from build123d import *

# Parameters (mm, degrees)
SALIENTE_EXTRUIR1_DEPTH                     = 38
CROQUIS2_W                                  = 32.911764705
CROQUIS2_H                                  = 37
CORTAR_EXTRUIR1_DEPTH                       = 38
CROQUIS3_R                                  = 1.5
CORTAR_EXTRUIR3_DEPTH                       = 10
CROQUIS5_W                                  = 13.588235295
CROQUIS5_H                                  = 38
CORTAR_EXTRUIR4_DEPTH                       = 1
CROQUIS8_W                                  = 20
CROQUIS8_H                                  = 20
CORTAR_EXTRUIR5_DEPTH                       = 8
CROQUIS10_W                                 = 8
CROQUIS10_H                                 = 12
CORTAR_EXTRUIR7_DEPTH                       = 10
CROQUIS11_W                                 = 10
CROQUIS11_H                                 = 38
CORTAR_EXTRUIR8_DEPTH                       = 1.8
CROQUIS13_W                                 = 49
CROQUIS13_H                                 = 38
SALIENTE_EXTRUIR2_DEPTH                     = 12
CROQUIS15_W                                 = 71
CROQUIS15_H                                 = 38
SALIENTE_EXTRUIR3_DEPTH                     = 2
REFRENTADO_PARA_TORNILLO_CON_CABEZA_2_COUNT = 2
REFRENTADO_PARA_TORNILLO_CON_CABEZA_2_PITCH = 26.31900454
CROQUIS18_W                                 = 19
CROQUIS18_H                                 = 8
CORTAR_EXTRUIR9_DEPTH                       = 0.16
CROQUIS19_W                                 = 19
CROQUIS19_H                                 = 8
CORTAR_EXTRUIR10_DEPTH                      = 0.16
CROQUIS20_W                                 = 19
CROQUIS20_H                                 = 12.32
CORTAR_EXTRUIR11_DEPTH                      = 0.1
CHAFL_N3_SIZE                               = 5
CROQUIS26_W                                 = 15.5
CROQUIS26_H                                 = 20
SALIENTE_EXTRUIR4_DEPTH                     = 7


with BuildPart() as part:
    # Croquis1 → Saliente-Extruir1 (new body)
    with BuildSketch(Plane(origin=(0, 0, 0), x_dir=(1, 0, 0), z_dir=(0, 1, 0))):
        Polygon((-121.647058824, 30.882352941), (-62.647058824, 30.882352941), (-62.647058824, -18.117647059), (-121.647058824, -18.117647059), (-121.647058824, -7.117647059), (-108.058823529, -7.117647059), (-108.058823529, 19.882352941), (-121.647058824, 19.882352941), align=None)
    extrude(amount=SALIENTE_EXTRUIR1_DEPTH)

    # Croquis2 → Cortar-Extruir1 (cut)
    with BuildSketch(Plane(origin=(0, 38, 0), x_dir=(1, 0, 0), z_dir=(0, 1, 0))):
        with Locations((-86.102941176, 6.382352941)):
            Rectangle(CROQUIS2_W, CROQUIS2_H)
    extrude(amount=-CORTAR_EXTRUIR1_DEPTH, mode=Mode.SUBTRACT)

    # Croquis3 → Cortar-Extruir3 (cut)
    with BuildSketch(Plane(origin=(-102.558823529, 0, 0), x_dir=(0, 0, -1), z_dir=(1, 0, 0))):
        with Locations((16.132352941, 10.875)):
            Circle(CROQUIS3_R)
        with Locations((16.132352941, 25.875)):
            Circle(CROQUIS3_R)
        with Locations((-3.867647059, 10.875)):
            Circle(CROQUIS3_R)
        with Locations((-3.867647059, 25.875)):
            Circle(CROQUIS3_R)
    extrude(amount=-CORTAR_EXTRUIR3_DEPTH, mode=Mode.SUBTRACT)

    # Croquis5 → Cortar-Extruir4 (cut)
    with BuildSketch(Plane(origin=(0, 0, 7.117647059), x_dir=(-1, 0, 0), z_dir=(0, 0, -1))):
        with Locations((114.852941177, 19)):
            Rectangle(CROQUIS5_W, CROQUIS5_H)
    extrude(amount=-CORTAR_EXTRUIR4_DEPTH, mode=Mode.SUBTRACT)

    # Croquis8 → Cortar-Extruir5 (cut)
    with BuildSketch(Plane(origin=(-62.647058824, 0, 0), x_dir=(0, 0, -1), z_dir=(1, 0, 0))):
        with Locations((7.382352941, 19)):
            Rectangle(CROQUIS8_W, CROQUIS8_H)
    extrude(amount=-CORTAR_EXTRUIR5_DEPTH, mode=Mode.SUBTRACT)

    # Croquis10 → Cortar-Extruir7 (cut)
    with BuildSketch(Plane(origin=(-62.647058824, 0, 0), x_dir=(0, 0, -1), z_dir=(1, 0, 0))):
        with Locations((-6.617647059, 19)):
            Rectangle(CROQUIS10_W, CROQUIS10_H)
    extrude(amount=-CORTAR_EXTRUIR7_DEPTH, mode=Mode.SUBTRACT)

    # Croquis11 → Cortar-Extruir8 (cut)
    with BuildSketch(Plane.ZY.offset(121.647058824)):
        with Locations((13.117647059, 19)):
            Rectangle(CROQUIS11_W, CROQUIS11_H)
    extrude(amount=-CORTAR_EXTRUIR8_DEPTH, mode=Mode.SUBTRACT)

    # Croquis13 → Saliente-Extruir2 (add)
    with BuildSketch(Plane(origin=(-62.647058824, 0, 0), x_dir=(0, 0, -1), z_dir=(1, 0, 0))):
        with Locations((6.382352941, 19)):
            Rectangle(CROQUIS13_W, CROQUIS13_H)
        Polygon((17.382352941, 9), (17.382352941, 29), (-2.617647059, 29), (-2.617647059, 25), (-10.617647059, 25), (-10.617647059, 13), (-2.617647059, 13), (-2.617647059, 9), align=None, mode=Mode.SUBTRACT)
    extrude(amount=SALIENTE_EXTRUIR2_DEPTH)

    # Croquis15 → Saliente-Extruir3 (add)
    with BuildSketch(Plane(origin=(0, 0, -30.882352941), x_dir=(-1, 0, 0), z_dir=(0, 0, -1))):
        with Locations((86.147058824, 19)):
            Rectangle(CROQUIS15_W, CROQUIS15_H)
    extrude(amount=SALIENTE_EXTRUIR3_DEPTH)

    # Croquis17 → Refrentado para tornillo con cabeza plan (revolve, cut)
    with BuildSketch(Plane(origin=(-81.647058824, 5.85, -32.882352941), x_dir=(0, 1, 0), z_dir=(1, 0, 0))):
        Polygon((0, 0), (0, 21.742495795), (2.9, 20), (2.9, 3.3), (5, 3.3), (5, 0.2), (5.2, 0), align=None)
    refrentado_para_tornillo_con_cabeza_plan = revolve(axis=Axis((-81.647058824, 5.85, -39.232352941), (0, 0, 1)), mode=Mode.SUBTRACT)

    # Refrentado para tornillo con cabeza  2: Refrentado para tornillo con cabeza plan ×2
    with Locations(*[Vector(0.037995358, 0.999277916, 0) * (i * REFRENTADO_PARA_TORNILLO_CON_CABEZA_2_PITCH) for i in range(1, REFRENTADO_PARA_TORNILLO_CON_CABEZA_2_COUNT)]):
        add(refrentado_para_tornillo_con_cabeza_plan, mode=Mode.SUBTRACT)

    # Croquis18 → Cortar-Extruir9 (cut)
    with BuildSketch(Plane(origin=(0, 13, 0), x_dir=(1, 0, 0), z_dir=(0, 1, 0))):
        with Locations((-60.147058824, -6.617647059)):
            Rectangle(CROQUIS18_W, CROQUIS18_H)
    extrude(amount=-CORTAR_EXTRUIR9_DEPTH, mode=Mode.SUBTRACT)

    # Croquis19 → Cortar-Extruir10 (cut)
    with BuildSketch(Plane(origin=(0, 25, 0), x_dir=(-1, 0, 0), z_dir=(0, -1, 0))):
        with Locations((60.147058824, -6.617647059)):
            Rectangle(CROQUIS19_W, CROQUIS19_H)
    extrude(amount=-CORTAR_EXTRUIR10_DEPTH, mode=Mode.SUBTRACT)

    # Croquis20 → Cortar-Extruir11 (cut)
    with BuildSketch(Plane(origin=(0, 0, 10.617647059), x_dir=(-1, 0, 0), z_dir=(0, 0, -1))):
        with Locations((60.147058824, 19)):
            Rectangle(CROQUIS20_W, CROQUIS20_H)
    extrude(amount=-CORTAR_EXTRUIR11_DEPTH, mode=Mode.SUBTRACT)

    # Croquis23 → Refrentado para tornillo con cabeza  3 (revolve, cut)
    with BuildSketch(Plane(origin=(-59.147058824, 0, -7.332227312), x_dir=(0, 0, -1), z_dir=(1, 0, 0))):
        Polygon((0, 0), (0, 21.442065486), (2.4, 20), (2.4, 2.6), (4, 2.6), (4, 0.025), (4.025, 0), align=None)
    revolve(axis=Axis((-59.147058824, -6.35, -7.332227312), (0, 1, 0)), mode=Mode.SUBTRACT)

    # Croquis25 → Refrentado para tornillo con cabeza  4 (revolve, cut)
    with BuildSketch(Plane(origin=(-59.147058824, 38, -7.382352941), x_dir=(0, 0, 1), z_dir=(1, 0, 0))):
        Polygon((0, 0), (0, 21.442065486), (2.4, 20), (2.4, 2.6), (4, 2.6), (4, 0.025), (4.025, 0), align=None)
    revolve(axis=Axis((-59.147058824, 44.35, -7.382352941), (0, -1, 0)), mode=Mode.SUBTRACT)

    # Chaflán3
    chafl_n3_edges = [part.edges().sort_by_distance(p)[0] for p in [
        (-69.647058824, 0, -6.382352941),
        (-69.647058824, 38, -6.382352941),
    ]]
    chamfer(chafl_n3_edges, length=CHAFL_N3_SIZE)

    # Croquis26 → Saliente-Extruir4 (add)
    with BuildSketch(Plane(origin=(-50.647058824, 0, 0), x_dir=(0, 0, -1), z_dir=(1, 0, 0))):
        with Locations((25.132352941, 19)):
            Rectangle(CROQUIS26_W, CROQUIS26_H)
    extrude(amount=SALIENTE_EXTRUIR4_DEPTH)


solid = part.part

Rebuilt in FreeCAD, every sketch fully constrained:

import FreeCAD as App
import Part
import Sketcher
Q = App.Units.Quantity


def edges_at(feature, points):
    """Names of the edges that pass closest to the given points."""
    edges = feature.Shape.Edges
    near = lambda p: min(range(len(edges)), key=lambda i: edges[i].distToShape(Part.Vertex(*p))[0])
    return sorted({f"Edge{near(p) + 1}" for p in points})


def add_polygon(sketch, points):
    """Adds a closed chain of lines whose ends are joined by coincident constraints."""
    first, n = sketch.GeometryCount, len(points)
    for a, b in zip(points, points[1:] + points[:1]):
        sketch.addGeometry(Part.LineSegment(App.Vector(*a, 0), App.Vector(*b, 0)), False)
    for i in range(n):
        sketch.addConstraint(Sketcher.Constraint("Coincident", first + i, 2, first + (i + 1) % n, 1))

doc = App.newDocument("Part")
body = doc.addObject("PartDesign::Body", "Body")

sketch1 = body.newObject("Sketcher::SketchObject", "Sketch")
sketch1.AttachmentSupport = (doc.getObject("XZ_Plane"), [""])
sketch1.MapMode = "FlatFace"
add_polygon(sketch1, [(-63, -31), (-122, -31), (-122, -20), (-108, -20), (-108, 7), (-122, 7), (-122, 18), (-63, 18)])
sketch1.addConstraint([
    Sketcher.Constraint("Horizontal", 0),
    Sketcher.Constraint("Vertical", 1),
    Sketcher.Constraint("Horizontal", 2),
    Sketcher.Constraint("Vertical", 3),
    Sketcher.Constraint("Horizontal", 4),
    Sketcher.Constraint("Vertical", 5),
    Sketcher.Constraint("Horizontal", 6),
    Sketcher.Constraint("Vertical", 7),
    Sketcher.Constraint("Vertical", 1, 2, 4, 2),
    Sketcher.Constraint("Equal", 1, 5),
    Sketcher.Constraint("DistanceX", 0, 2, 0, 1, 59.0),
    Sketcher.Constraint("DistanceY", 1, 1, 1, 2, 11.0),
    Sketcher.Constraint("DistanceY", 3, 1, 3, 2, 27.0),
    Sketcher.Constraint("DistanceX", 2, 1, 2, 2, 13.588235),
    Sketcher.Constraint("DistanceX", 0, 2, -1, 1, 121.647059),
    Sketcher.Constraint("DistanceY", 0, 2, -1, 1, 30.882353),
])
pad1 = body.newObject("PartDesign::Pad", "Pad")
pad1.Profile = sketch1
pad1.Length = 38
pad1.Reversed = True

sketch2 = body.newObject("Sketcher::SketchObject", "Sketch001")
sketch2.AttachmentSupport = (doc.getObject("XZ_Plane"), [""])
sketch2.MapMode = "FlatFace"
sketch2.AttachmentOffset = App.Placement(App.Vector(0, 0, -38), App.Rotation())
add_polygon(sketch2, [(-103, -25), (-103, 12), (-70, 12), (-70, -25)])
sketch2.addConstraint([
    Sketcher.Constraint("Vertical", 0),
    Sketcher.Constraint("Horizontal", 1),
    Sketcher.Constraint("Vertical", 2),
    Sketcher.Constraint("Horizontal", 3),
    Sketcher.Constraint("DistanceY", 0, 1, 0, 2, 37.0),
    Sketcher.Constraint("DistanceX", 1, 1, 1, 2, 32.911765),
    Sketcher.Constraint("DistanceX", 1, 2, -1, 1, 69.647059),
    Sketcher.Constraint("DistanceY", -1, 1, 0, 2, 12.117647),
])
pocket1 = body.newObject("PartDesign::Pocket", "Pocket")
pocket1.Profile = sketch2
pocket1.Length = 38
pocket1.Reversed = True

sketch3 = body.newObject("Sketcher::SketchObject", "Sketch002")
sketch3.AttachmentSupport = (doc.getObject("YZ_Plane"), [""])
sketch3.MapMode = "FlatFace"
sketch3.AttachmentOffset = App.Placement(App.Vector(0, 0, -102.558824), App.Rotation())
sketch3.addGeometry([
    Part.Circle(App.Vector(10.9, -16.1, 0), App.Vector(0, 0, 1), 1.5),
    Part.Circle(App.Vector(25.9, -16.1, 0), App.Vector(0, 0, 1), 1.5),
    Part.Circle(App.Vector(10.9, 3.9, 0), App.Vector(0, 0, 1), 1.5),
    Part.Circle(App.Vector(25.9, 3.9, 0), App.Vector(0, 0, 1), 1.5),
], False)
sketch3.addConstraint([
    Sketcher.Constraint("Equal", 0, 1),
    Sketcher.Constraint("Equal", 1, 2),
    Sketcher.Constraint("Equal", 2, 3),
    Sketcher.Constraint("Horizontal", 0, 3, 1, 3),
    Sketcher.Constraint("Horizontal", 2, 3, 3, 3),
    Sketcher.Constraint("Vertical", 0, 3, 2, 3),
    Sketcher.Constraint("Vertical", 1, 3, 3, 3),
    Sketcher.Constraint("Diameter", 0, 3.0),
    Sketcher.Constraint("DistanceX", 0, 3, 1, 3, 15.0),
    Sketcher.Constraint("DistanceY", 0, 3, 2, 3, 20.0),
    Sketcher.Constraint("DistanceX", -1, 1, 0, 3, 10.875),
    Sketcher.Constraint("DistanceY", 0, 3, -1, 1, 16.132353),
])
pocket2 = body.newObject("PartDesign::Pocket", "Pocket001")
pocket2.Profile = sketch3
pocket2.Length = 10

sketch4 = body.newObject("Sketcher::SketchObject", "Sketch003")
sketch4.AttachmentSupport = (doc.getObject("XY_Plane"), [""])
sketch4.MapMode = "FlatFace"
sketch4.AttachmentOffset = App.Placement(App.Vector(0, 0, 7.117647), App.Rotation())
add_polygon(sketch4, [(-108, 38), (-108, 0), (-122, 0), (-122, 38)])
sketch4.addConstraint([
    Sketcher.Constraint("Vertical", 0),
    Sketcher.Constraint("Horizontal", 1),
    Sketcher.Constraint("Vertical", 2),
    Sketcher.Constraint("Horizontal", 3),
    Sketcher.Constraint("PointOnObject", 0, 2, -1),
    Sketcher.Constraint("DistanceY", 0, 2, 0, 1, 38.0),
    Sketcher.Constraint("DistanceX", 1, 2, 1, 1, 13.588235),
    Sketcher.Constraint("DistanceX", 1, 2, -1, 1, 121.647059),
])
pocket3 = body.newObject("PartDesign::Pocket", "Pocket002")
pocket3.Profile = sketch4
pocket3.Length = 1
pocket3.Reversed = True

sketch5 = body.newObject("Sketcher::SketchObject", "Sketch004")
sketch5.AttachmentSupport = (doc.getObject("YZ_Plane"), [""])
sketch5.MapMode = "FlatFace"
sketch5.AttachmentOffset = App.Placement(App.Vector(0, 0, -62.647059), App.Rotation())
add_polygon(sketch5, [(29, 3), (9, 3), (9, -17), (29, -17)])
sketch5.addConstraint([
    Sketcher.Constraint("Horizontal", 0),
    Sketcher.Constraint("Vertical", 1),
    Sketcher.Constraint("Horizontal", 2),
    Sketcher.Constraint("Vertical", 3),
    Sketcher.Constraint("Equal", 2, 1),
    Sketcher.Constraint("DistanceX", 0, 2, 0, 1, 20.0),
    Sketcher.Constraint("DistanceX", -1, 1, 0, 2, 9.0),
    Sketcher.Constraint("DistanceY", -1, 1, 0, 2, 2.617647),
])
pocket4 = body.newObject("PartDesign::Pocket", "Pocket003")
pocket4.Profile = sketch5
pocket4.Length = 8

sketch6 = body.newObject("Sketcher::SketchObject", "Sketch005")
sketch6.AttachmentSupport = (doc.getObject("YZ_Plane"), [""])
sketch6.MapMode = "FlatFace"
sketch6.AttachmentOffset = App.Placement(App.Vector(0, 0, -62.647059), App.Rotation())
add_polygon(sketch6, [(25, 11), (13, 11), (13, 3), (25, 3)])
sketch6.addConstraint([
    Sketcher.Constraint("Horizontal", 0),
    Sketcher.Constraint("Vertical", 1),
    Sketcher.Constraint("Horizontal", 2),
    Sketcher.Constraint("Vertical", 3),
    Sketcher.Constraint("DistanceX", 0, 2, 0, 1, 12.0),
    Sketcher.Constraint("DistanceY", 1, 2, 1, 1, 8.0),
    Sketcher.Constraint("DistanceX", -1, 1, 0, 2, 13.0),
    Sketcher.Constraint("DistanceY", -1, 1, 0, 2, 10.617647),
])
pocket5 = body.newObject("PartDesign::Pocket", "Pocket004")
pocket5.Profile = sketch6
pocket5.Length = 10

sketch7 = body.newObject("Sketcher::SketchObject", "Sketch006")
sketch7.AttachmentSupport = (doc.getObject("YZ_Plane"), [""])
sketch7.MapMode = "FlatFace"
sketch7.AttachmentOffset = App.Placement(App.Vector(0, 0, -121.647059), App.Rotation())
add_polygon(sketch7, [(38, 8), (0, 8), (0, 18), (38, 18)])
sketch7.addConstraint([
    Sketcher.Constraint("Horizontal", 0),
    Sketcher.Constraint("Vertical", 1),
    Sketcher.Constraint("Horizontal", 2),
    Sketcher.Constraint("Vertical", 3),
    Sketcher.Constraint("PointOnObject", 0, 2, -2),
    Sketcher.Constraint("DistanceX", 0, 2, 0, 1, 38.0),
    Sketcher.Constraint("DistanceY", 1, 1, 1, 2, 10.0),
    Sketcher.Constraint("DistanceY", -1, 1, 0, 2, 8.117647),
])
pocket6 = body.newObject("PartDesign::Pocket", "Pocket005")
pocket6.Profile = sketch7
pocket6.Length = 1.8
pocket6.Reversed = True

sketch8 = body.newObject("Sketcher::SketchObject", "Sketch007")
sketch8.AttachmentSupport = (doc.getObject("YZ_Plane"), [""])
sketch8.MapMode = "FlatFace"
sketch8.AttachmentOffset = App.Placement(App.Vector(0, 0, -62.647059), App.Rotation())
add_polygon(sketch8, [(38, 18.1), (0, 18.1), (0, -30.9), (38, -30.9)])
add_polygon(sketch8, [(29, -17.4), (9, -17.4), (9, 2.6), (13, 2.6), (13, 10.6), (25, 10.6), (25, 2.6), (29, 2.6)])
sketch8.addConstraint([
    Sketcher.Constraint("Horizontal", 0),
    Sketcher.Constraint("Vertical", 1),
    Sketcher.Constraint("Horizontal", 2),
    Sketcher.Constraint("Vertical", 3),
    Sketcher.Constraint("Horizontal", 4),
    Sketcher.Constraint("Vertical", 5),
    Sketcher.Constraint("Horizontal", 6),
    Sketcher.Constraint("Vertical", 7),
    Sketcher.Constraint("Horizontal", 8),
    Sketcher.Constraint("Vertical", 9),
    Sketcher.Constraint("Horizontal", 10),
    Sketcher.Constraint("Vertical", 11),
    Sketcher.Constraint("PointOnObject", 0, 2, -2),
    Sketcher.Constraint("Horizontal", 6, 2, 9, 2),
    Sketcher.Constraint("Equal", 6, 10),
    Sketcher.Constraint("Equal", 4, 5),
    Sketcher.Constraint("DistanceX", 0, 2, 0, 1, 38.0),
    Sketcher.Constraint("DistanceX", 4, 2, 4, 1, 20.0),
    Sketcher.Constraint("DistanceX", 6, 1, 6, 2, 4.0),
    Sketcher.Constraint("DistanceY", 1, 2, 1, 1, 49.0),
    Sketcher.Constraint("DistanceY", 7, 1, 7, 2, 8.0),
    Sketcher.Constraint("DistanceX", -1, 1, 4, 2, 9.0),
    Sketcher.Constraint("DistanceY", 1, 2, 4, 2, 13.5),
    Sketcher.Constraint("DistanceY", -1, 1, 0, 2, 18.117647),
])
pad2 = body.newObject("PartDesign::Pad", "Pad001")
pad2.Profile = sketch8
pad2.Length = 12

sketch9 = body.newObject("Sketcher::SketchObject", "Sketch008")
sketch9.AttachmentSupport = (doc.getObject("XY_Plane"), [""])
sketch9.MapMode = "FlatFace"
sketch9.AttachmentOffset = App.Placement(App.Vector(0, 0, -30.882353), App.Rotation())
add_polygon(sketch9, [(-51, 38), (-51, 0), (-122, 0), (-122, 38)])
sketch9.addConstraint([
    Sketcher.Constraint("Vertical", 0),
    Sketcher.Constraint("Horizontal", 1),
    Sketcher.Constraint("Vertical", 2),
    Sketcher.Constraint("Horizontal", 3),
    Sketcher.Constraint("PointOnObject", 0, 2, -1),
    Sketcher.Constraint("DistanceX", 1, 2, 1, 1, 71.0),
    Sketcher.Constraint("DistanceY", 0, 2, 0, 1, 38.0),
    Sketcher.Constraint("DistanceX", 0, 2, -1, 1, 50.647059),
])
pad3 = body.newObject("PartDesign::Pad", "Pad002")
pad3.Profile = sketch9
pad3.Length = 2
pad3.Reversed = True

sketch10 = body.newObject("Sketcher::SketchObject", "Sketch009")
sketch10.AttachmentSupport = (doc.getObject("YZ_Plane"), [""])
sketch10.MapMode = "FlatFace"
sketch10.AttachmentOffset = App.Placement(App.Vector(0, 0, -81.647059), App.Rotation())
add_polygon(sketch10, [(5.85, -11.14), (5.85, -32.88), (11.05, -32.88), (10.85, -32.68), (10.85, -29.58), (8.75, -29.58), (8.75, -12.88)])
sketch10.addGeometry(Part.LineSegment(App.Vector(5.85, -32.88, 0), App.Vector(5.85, -11.14, 0)), True)
sketch10.addConstraint([
    Sketcher.Constraint("Vertical", 0),
    Sketcher.Constraint("Horizontal", 1),
    Sketcher.Constraint("Vertical", 3),
    Sketcher.Constraint("Horizontal", 4),
    Sketcher.Constraint("Vertical", 5),
    Sketcher.Constraint("Vertical", 7),
    Sketcher.Constraint("Coincident", 7, 1, 0, 2),
    Sketcher.Constraint("Equal", 0, 7),
    Sketcher.Constraint("Angle", 2, Q("135 deg")),
    Sketcher.Constraint("Angle", 6, Q("149 deg")),
    Sketcher.Constraint("DistanceX", 1, 1, 1, 2, 5.2),
    Sketcher.Constraint("DistanceX", 4, 2, 4, 1, 2.1),
    Sketcher.Constraint("DistanceY", 3, 1, 3, 2, 3.1),
    Sketcher.Constraint("DistanceY", 5, 1, 5, 2, 16.7),
    Sketcher.Constraint("DistanceX", 0, 2, 2, 2, 5.0),
    Sketcher.Constraint("DistanceX", -1, 1, 0, 2, 5.85),
    Sketcher.Constraint("DistanceY", 0, 2, -1, 1, 32.882353),
])
groove = body.newObject("PartDesign::Groove", "Groove")
groove.Profile = sketch10
groove.ReferenceAxis = (sketch10, ["Axis0"])
groove.Angle = 360
doc.recompute()

datumline = body.newObject("PartDesign::Line", "DatumLine")
datumline.Placement = App.Placement(App.Vector(0, 0, 0), App.Rotation(App.Vector(0, 0, 1), App.Vector(0.037995358, 0.999277916, 0)))
linearpattern = body.newObject("PartDesign::LinearPattern", "LinearPattern")
linearpattern.Originals = [groove]
linearpattern.Direction = (datumline, [""])
linearpattern.Mode = "offset"
linearpattern.Offset = 26.319005
linearpattern.Occurrences = 2
body.Tip = linearpattern

sketch11 = body.newObject("Sketcher::SketchObject", "Sketch010")
sketch11.AttachmentSupport = (doc.getObject("XZ_Plane"), [""])
sketch11.MapMode = "FlatFace"
sketch11.AttachmentOffset = App.Placement(App.Vector(0, 0, -13), App.Rotation())
add_polygon(sketch11, [(-70, 3), (-70, 11), (-51, 11), (-51, 3)])
sketch11.addConstraint([
    Sketcher.Constraint("Vertical", 0),
    Sketcher.Constraint("Horizontal", 1),
    Sketcher.Constraint("Vertical", 2),
    Sketcher.Constraint("Horizontal", 3),
    Sketcher.Constraint("DistanceX", 1, 1, 1, 2, 19.0),
    Sketcher.Constraint("DistanceY", 0, 1, 0, 2, 8.0),
    Sketcher.Constraint("DistanceX", 0, 2, -1, 1, 69.647059),
    Sketcher.Constraint("DistanceY", -1, 1, 0, 2, 10.617647),
])
pocket7 = body.newObject("PartDesign::Pocket", "Pocket006")
pocket7.Profile = sketch11
pocket7.Length = 0.16
pocket7.Reversed = True

sketch12 = body.newObject("Sketcher::SketchObject", "Sketch011")
sketch12.AttachmentSupport = (doc.getObject("XZ_Plane"), [""])
sketch12.MapMode = "FlatFace"
sketch12.AttachmentOffset = App.Placement(App.Vector(0, 0, -25), App.Rotation())
add_polygon(sketch12, [(-51, 3), (-51, 11), (-70, 11), (-70, 3)])
sketch12.addConstraint([
    Sketcher.Constraint("Vertical", 0),
    Sketcher.Constraint("Horizontal", 1),
    Sketcher.Constraint("Vertical", 2),
    Sketcher.Constraint("Horizontal", 3),
    Sketcher.Constraint("DistanceX", 1, 2, 1, 1, 19.0),
    Sketcher.Constraint("DistanceY", 0, 1, 0, 2, 8.0),
    Sketcher.Constraint("DistanceX", 0, 2, -1, 1, 50.647059),
    Sketcher.Constraint("DistanceY", -1, 1, 0, 2, 10.617647),
])
pocket8 = body.newObject("PartDesign::Pocket", "Pocket007")
pocket8.Profile = sketch12
pocket8.Length = 0.16

sketch13 = body.newObject("Sketcher::SketchObject", "Sketch012")
sketch13.AttachmentSupport = (doc.getObject("XY_Plane"), [""])
sketch13.MapMode = "FlatFace"
sketch13.AttachmentOffset = App.Placement(App.Vector(0, 0, 10.617647), App.Rotation())
add_polygon(sketch13, [(-51, 25), (-51, 13), (-70, 13), (-70, 25)])
sketch13.addConstraint([
    Sketcher.Constraint("Vertical", 0),
    Sketcher.Constraint("Horizontal", 1),
    Sketcher.Constraint("Vertical", 2),
    Sketcher.Constraint("Horizontal", 3),
    Sketcher.Constraint("DistanceX", 1, 2, 1, 1, 19.0),
    Sketcher.Constraint("DistanceY", 0, 2, 0, 1, 12.32),
    Sketcher.Constraint("DistanceY", -1, 1, 0, 2, 12.84),
    Sketcher.Constraint("DistanceX", 0, 2, -1, 1, 50.647059),
])
pocket9 = body.newObject("PartDesign::Pocket", "Pocket008")
pocket9.Profile = sketch13
pocket9.Length = 0.1
pocket9.Reversed = True

sketch14 = body.newObject("Sketcher::SketchObject", "Sketch013")
sketch14.AttachmentSupport = (doc.getObject("YZ_Plane"), [""])
sketch14.MapMode = "FlatFace"
sketch14.AttachmentOffset = App.Placement(App.Vector(0, 0, -59.147059), App.Rotation())
add_polygon(sketch14, [(21.442, -7.332), (0, -7.332), (0, -11.357), (0.025, -11.332), (2.6, -11.332), (2.6, -9.732), (20, -9.732)])
sketch14.addGeometry(Part.LineSegment(App.Vector(0, -7.332, 0), App.Vector(21.442, -7.332, 0)), True)
sketch14.addConstraint([
    Sketcher.Constraint("Horizontal", 0),
    Sketcher.Constraint("Vertical", 1),
    Sketcher.Constraint("Horizontal", 3),
    Sketcher.Constraint("Vertical", 4),
    Sketcher.Constraint("Horizontal", 5),
    Sketcher.Constraint("Horizontal", 7),
    Sketcher.Constraint("Coincident", 7, 1, 0, 2),
    Sketcher.Constraint("PointOnObject", 0, 2, -2),
    Sketcher.Constraint("Equal", 0, 7),
    Sketcher.Constraint("Angle", 2, Q("45 deg")),
    Sketcher.Constraint("Angle", 6, Q("59 deg")),
    Sketcher.Constraint("DistanceX", 5, 1, 5, 2, 17.4),
    Sketcher.Constraint("DistanceY", 4, 1, 4, 2, 1.6),
    Sketcher.Constraint("DistanceX", -1, 1, 5, 2, 20.0),
    Sketcher.Constraint("DistanceY", 2, 2, 0, 2, 4.0),
    Sketcher.Constraint("DistanceX", 3, 1, 3, 2, 2.575),
    Sketcher.Constraint("DistanceY", 0, 2, -1, 1, 7.332227),
])
groove2 = body.newObject("PartDesign::Groove", "Groove001")
groove2.Profile = sketch14
groove2.ReferenceAxis = (sketch14, ["Axis0"])
groove2.Angle = 360

sketch15 = body.newObject("Sketcher::SketchObject", "Sketch014")
sketch15.AttachmentSupport = (doc.getObject("YZ_Plane"), [""])
sketch15.MapMode = "FlatFace"
sketch15.AttachmentOffset = App.Placement(App.Vector(0, 0, -59.147059), App.Rotation())
add_polygon(sketch15, [(16.558, -7.382), (38, -7.382), (38, -3.357), (37.975, -3.382), (35.4, -3.382), (35.4, -4.982), (18, -4.982)])
sketch15.addGeometry(Part.LineSegment(App.Vector(38, -7.382, 0), App.Vector(16.558, -7.382, 0)), True)
sketch15.addConstraint([
    Sketcher.Constraint("Horizontal", 0),
    Sketcher.Constraint("Vertical", 1),
    Sketcher.Constraint("Horizontal", 3),
    Sketcher.Constraint("Vertical", 4),
    Sketcher.Constraint("Horizontal", 5),
    Sketcher.Constraint("Horizontal", 7),
    Sketcher.Constraint("Coincident", 7, 1, 0, 2),
    Sketcher.Constraint("Equal", 0, 7),
    Sketcher.Constraint("Angle", 2, Q("-135 deg")),
    Sketcher.Constraint("Angle", 6, Q("-121 deg")),
    Sketcher.Constraint("DistanceX", 5, 2, 5, 1, 17.4),
    Sketcher.Constraint("DistanceY", 4, 2, 4, 1, 1.6),
    Sketcher.Constraint("DistanceX", -1, 1, 0, 2, 38.0),
    Sketcher.Constraint("DistanceX", -1, 1, 5, 2, 18.0),
    Sketcher.Constraint("DistanceY", 0, 2, 2, 2, 4.0),
    Sketcher.Constraint("DistanceX", 3, 2, 3, 1, 2.575),
    Sketcher.Constraint("DistanceY", 0, 2, -1, 1, 7.382353),
])
groove3 = body.newObject("PartDesign::Groove", "Groove002")
groove3.Profile = sketch15
groove3.ReferenceAxis = (sketch15, ["Axis0"])
groove3.Angle = 360
doc.recompute()

chamfer = body.newObject("PartDesign::Chamfer", "Chamfer")
chamfer.Base = (groove3, edges_at(groove3, [(-69.647, 0, -6.382), (-69.647, 38, -6.382)]))
chamfer.Size = 5

sketch16 = body.newObject("Sketcher::SketchObject", "Sketch015")
sketch16.AttachmentSupport = (doc.getObject("YZ_Plane"), [""])
sketch16.MapMode = "FlatFace"
sketch16.AttachmentOffset = App.Placement(App.Vector(0, 0, -50.647059), App.Rotation())
add_polygon(sketch16, [(29, -17), (9, -17), (9, -33), (29, -33)])
sketch16.addConstraint([
    Sketcher.Constraint("Horizontal", 0),
    Sketcher.Constraint("Vertical", 1),
    Sketcher.Constraint("Horizontal", 2),
    Sketcher.Constraint("Vertical", 3),
    Sketcher.Constraint("DistanceX", 0, 2, 0, 1, 20.0),
    Sketcher.Constraint("DistanceY", 1, 2, 1, 1, 15.5),
    Sketcher.Constraint("DistanceX", -1, 1, 0, 2, 9.0),
    Sketcher.Constraint("DistanceY", 0, 2, -1, 1, 17.382353),
])
pad4 = body.newObject("PartDesign::Pad", "Pad003")
pad4.Profile = sketch16
pad4.Length = 7

doc.recompute()
